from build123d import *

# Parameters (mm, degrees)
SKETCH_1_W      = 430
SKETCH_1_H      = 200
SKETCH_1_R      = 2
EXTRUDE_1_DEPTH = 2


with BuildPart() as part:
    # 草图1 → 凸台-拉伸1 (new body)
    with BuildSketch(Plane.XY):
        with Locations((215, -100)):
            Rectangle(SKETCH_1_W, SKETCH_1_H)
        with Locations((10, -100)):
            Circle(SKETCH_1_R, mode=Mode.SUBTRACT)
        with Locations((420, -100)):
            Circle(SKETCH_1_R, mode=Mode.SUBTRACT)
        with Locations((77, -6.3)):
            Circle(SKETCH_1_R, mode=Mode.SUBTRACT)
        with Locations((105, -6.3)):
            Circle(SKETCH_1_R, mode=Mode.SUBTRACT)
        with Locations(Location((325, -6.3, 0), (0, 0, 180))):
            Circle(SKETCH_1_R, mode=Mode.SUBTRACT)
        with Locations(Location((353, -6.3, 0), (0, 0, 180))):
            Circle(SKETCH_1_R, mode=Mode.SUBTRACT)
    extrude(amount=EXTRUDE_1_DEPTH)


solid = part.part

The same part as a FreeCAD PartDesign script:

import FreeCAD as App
import Part
import Sketcher

V = App.Vector
Q = App.Units.Quantity

doc = App.newDocument("Part")
body = doc.addObject("PartDesign::Body", "Body")

# Sketch on XY plane
sketch1 = doc.addObject("Sketcher::SketchObject", "Sketch")
body.addObject(sketch1)
sketch1.AttachmentSupport = (doc.XY_Plane, [""])
sketch1.MapMode = "FlatFace"
sketch1.addGeometry(Part.LineSegment(V(0, 0, 0), V(0, -200, 0)), False)
sketch1.addGeometry(Part.LineSegment(V(0, -200, 0), V(430, -200, 0)), False)
sketch1.addGeometry(Part.LineSegment(V(430, -200, 0), V(430, 0, 0)), False)
sketch1.addGeometry(Part.LineSegment(V(430, 0, 0), V(0, 0, 0)), False)
sketch1.addGeometry(Part.Circle(V(10, -100, 0), V(0, 0, 1), 2), False)
sketch1.addGeometry(Part.Circle(V(420, -100, 0), V(0, 0, 1), 2), False)
sketch1.addGeometry(Part.Circle(V(77, -6.3, 0), V(0, 0, 1), 2), False)
sketch1.addGeometry(Part.Circle(V(105, -6.3, 0), V(0, 0, 1), 2), False)
sketch1.addGeometry(Part.Circle(V(325, -6.3, 0), V(0, 0, 1), 2), False)
sketch1.addGeometry(Part.Circle(V(353, -6.3, 0), V(0, 0, 1), 2), False)
sketch1.addConstraint(Sketcher.Constraint("Coincident", 0, 2, 1, 1))
sketch1.addConstraint(Sketcher.Constraint("Coincident", 1, 2, 2, 1))
sketch1.addConstraint(Sketcher.Constraint("Coincident", 2, 2, 3, 1))
sketch1.addConstraint(Sketcher.Constraint("Coincident", 3, 2, 0, 1))
sketch1.addConstraint(Sketcher.Constraint("Vertical", 0))
sketch1.addConstraint(Sketcher.Constraint("Horizontal", 1))
sketch1.addConstraint(Sketcher.Constraint("Vertical", 2))
sketch1.addConstraint(Sketcher.Constraint("Horizontal", 3))
sketch1.addConstraint(Sketcher.Constraint("Coincident", 3, 2, -1, 1))
sketch1.addConstraint(Sketcher.Constraint("Equal", 4, 5))
sketch1.addConstraint(Sketcher.Constraint("Equal", 5, 6))
sketch1.addConstraint(Sketcher.Constraint("Equal", 6, 7))
sketch1.addConstraint(Sketcher.Constraint("Equal", 7, 8))
sketch1.addConstraint(Sketcher.Constraint("Equal", 8, 9))
sketch1.addConstraint(Sketcher.Constraint("Horizontal", 4, 3, 5, 3))
sketch1.addConstraint(Sketcher.Constraint("Horizontal", 6, 3, 7, 3))
sketch1.addConstraint(Sketcher.Constraint("Horizontal", 7, 3, 8, 3))
sketch1.addConstraint(Sketcher.Constraint("Horizontal", 8, 3, 9, 3))
sketch1.addConstraint(Sketcher.Constraint("Diameter", 4, Q("4 mm")))
sketch1.addConstraint(Sketcher.Constraint("DistanceX", 1, 1, 1, 2, Q("430 mm")))
sketch1.addConstraint(Sketcher.Constraint("DistanceY", 0, 2, 0, 1, Q("200 mm")))
sketch1.addConstraint(Sketcher.Constraint("DistanceX", -1, 1, 4, 3, Q("10 mm")))
sketch1.addConstraint(Sketcher.Constraint("DistanceY", 4, 3, -1, 1, Q("100 mm")))
sketch1.addConstraint(Sketcher.Constraint("DistanceX", -1, 1, 5, 3, Q("420 mm")))
sketch1.addConstraint(Sketcher.Constraint("DistanceX", -1, 1, 6, 3, Q("77 mm")))
sketch1.addConstraint(Sketcher.Constraint("DistanceX", -1, 1, 7, 3, Q("105 mm")))
sketch1.addConstraint(Sketcher.Constraint("DistanceX", -1, 1, 8, 3, Q("325 mm")))
sketch1.addConstraint(Sketcher.Constraint("DistanceX", -1, 1, 9, 3, Q("353 mm")))
sketch1.addConstraint(Sketcher.Constraint("DistanceY", 6, 3, -1, 1, Q("6.3 mm")))
pad1 = doc.addObject("PartDesign::Pad", "Pad")
body.addObject(pad1)
pad1.Profile = sketch1
pad1.Length = 2

doc.recompute()
